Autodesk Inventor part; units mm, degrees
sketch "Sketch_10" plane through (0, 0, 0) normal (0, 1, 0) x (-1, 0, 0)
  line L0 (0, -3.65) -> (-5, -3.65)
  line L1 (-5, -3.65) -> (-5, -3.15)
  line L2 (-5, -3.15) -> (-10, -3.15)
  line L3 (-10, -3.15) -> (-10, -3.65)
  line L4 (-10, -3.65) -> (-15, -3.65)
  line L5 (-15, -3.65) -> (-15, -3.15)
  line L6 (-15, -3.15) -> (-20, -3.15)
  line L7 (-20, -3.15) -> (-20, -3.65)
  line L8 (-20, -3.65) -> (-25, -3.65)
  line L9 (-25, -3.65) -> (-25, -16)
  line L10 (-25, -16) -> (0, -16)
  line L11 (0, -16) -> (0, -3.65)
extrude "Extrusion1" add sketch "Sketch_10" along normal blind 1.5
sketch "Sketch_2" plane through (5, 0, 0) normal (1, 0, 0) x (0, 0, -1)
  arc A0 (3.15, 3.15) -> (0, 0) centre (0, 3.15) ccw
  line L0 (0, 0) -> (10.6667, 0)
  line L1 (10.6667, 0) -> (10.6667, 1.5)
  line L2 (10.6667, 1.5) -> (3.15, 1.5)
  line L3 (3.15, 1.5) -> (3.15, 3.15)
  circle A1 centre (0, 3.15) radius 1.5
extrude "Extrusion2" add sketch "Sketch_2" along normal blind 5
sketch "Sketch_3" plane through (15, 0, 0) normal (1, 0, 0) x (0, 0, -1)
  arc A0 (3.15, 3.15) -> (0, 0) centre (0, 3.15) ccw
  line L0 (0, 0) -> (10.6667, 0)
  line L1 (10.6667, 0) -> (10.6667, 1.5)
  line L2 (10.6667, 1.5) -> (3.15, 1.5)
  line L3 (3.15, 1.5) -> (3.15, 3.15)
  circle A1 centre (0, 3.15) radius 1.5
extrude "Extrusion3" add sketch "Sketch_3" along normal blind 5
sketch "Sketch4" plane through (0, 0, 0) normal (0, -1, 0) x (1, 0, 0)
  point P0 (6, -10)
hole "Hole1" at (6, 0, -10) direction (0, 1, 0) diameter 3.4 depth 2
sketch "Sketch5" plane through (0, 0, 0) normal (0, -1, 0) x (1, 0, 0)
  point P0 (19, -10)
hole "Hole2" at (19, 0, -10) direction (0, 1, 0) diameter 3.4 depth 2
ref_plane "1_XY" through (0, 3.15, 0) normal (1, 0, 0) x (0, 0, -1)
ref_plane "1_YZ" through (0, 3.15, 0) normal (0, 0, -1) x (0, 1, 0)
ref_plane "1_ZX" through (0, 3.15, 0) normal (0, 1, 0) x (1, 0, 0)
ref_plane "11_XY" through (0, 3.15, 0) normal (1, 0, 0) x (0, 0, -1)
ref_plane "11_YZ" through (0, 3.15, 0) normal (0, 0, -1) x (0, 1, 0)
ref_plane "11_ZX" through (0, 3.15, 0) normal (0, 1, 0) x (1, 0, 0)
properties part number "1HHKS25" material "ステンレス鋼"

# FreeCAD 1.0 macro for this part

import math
import FreeCAD as App
import Part
import Sketcher
from FreeCAD import Vector
Q = App.Units.Quantity

doc = App.newDocument("Part")
body = doc.addObject("PartDesign::Body", "Body")

# Sketch on XZ plane
sketch1 = body.newObject("Sketcher::SketchObject", "Sketch")
sketch1.AttachmentSupport = (doc.getObject("XZ_Plane"), [""])
sketch1.MapMode = "FlatFace"
sketch1.addGeometry([
    Part.LineSegment(Vector(0, -16, 0), Vector(0, -3.6, 0)),  # 0
    Part.LineSegment(Vector(0, -3.6, 0), Vector(5, -3.6, 0)),  # 1
    Part.LineSegment(Vector(5, -3.6, 0), Vector(5, -3.1, 0)),  # 2
    Part.LineSegment(Vector(5, -3.1, 0), Vector(10, -3.1, 0)),  # 3
    Part.LineSegment(Vector(10, -3.1, 0), Vector(10, -3.6, 0)),  # 4
    Part.LineSegment(Vector(10, -3.6, 0), Vector(15, -3.6, 0)),  # 5
    Part.LineSegment(Vector(15, -3.6, 0), Vector(15, -3.1, 0)),  # 6
    Part.LineSegment(Vector(15, -3.1, 0), Vector(20, -3.1, 0)),  # 7
    Part.LineSegment(Vector(20, -3.1, 0), Vector(20, -3.6, 0)),  # 8
    Part.LineSegment(Vector(20, -3.6, 0), Vector(25, -3.6, 0)),  # 9
    Part.LineSegment(Vector(25, -3.6, 0), Vector(25, -16, 0)),  # 10
    Part.LineSegment(Vector(25, -16, 0), Vector(0, -16, 0)),  # 11
], False)
sketch1.addConstraint([
    Sketcher.Constraint("Coincident", 0, 2, 1, 1),
    Sketcher.Constraint("Coincident", 1, 2, 2, 1),
    Sketcher.Constraint("Coincident", 2, 2, 3, 1),
    Sketcher.Constraint("Coincident", 3, 2, 4, 1),
    Sketcher.Constraint("Coincident", 4, 2, 5, 1),
    Sketcher.Constraint("Coincident", 5, 2, 6, 1),
    Sketcher.Constraint("Coincident", 6, 2, 7, 1),
    Sketcher.Constraint("Coincident", 7, 2, 8, 1),
    Sketcher.Constraint("Coincident", 8, 2, 9, 1),
    Sketcher.Constraint("Coincident", 9, 2, 10, 1),
    Sketcher.Constraint("Coincident", 10, 2, 11, 1),
    Sketcher.Constraint("Coincident", 11, 2, 0, 1),
    Sketcher.Constraint("Vertical", 0),
    Sketcher.Constraint("Horizontal", 1),
    Sketcher.Constraint("Vertical", 2),
    Sketcher.Constraint("Horizontal", 3),
    Sketcher.Constraint("Vertical", 4),
    Sketcher.Constraint("Horizontal", 5),
    Sketcher.Constraint("Vertical", 6),
    Sketcher.Constraint("Horizontal", 7),
    Sketcher.Constraint("Vertical", 8),
    Sketcher.Constraint("Horizontal", 9),
    Sketcher.Constraint("Vertical", 10),
    Sketcher.Constraint("Horizontal", 11),
    Sketcher.Constraint("PointOnObject", 0, 2, -2),
    Sketcher.Constraint("Horizontal", 1, 2, 4, 2),
    Sketcher.Constraint("Horizontal", 3, 2, 6, 2),
    Sketcher.Constraint("Horizontal", 5, 2, 8, 2),
    Sketcher.Constraint("Equal", 1, 3),
    Sketcher.Constraint("Equal", 3, 5),
    Sketcher.Constraint("Equal", 5, 7),
    Sketcher.Constraint("Equal", 7, 9),
    Sketcher.Constraint("DistanceX", 1, 1, 1, 2, Q("5 mm")),
    Sketcher.Constraint("DistanceY", 2, 1, 2, 2, Q("0.5 mm")),
    Sketcher.Constraint("DistanceY", 10, 2, -1, 1, Q("16 mm")),
    Sketcher.Constraint("DistanceY", 0, 1, 0, 2, Q("12.35 mm")),
])
pad1 = body.newObject("PartDesign::Pad", "Pad")
pad1.Profile = sketch1
pad1.Length = 1.5
pad1.Reversed = True

# Sketch on YZ plane
sketch2 = body.newObject("Sketcher::SketchObject", "Sketch001")
sketch2.AttachmentSupport = (doc.getObject("YZ_Plane"), [""])
sketch2.MapMode = "FlatFace"
sketch2.AttachmentOffset = App.Placement(Vector(0, 0, 5), App.Rotation())
sketch2.addGeometry([
    Part.LineSegment(Vector(1.5, -3.1, 0), Vector(3.1, -3.1, 0)),  # 0
    Part.ArcOfCircle(Part.Circle(Vector(3.1, 0, 0), Vector(0, 0, 1), 3.1), math.radians(-90), math.radians(180)),  # 1
    Part.LineSegment(Vector(0, 0, 0), Vector(0, -10.7, 0)),  # 2
    Part.LineSegment(Vector(0, -10.7, 0), Vector(1.5, -10.7, 0)),  # 3
    Part.LineSegment(Vector(1.5, -10.7, 0), Vector(1.5, -3.1, 0)),  # 4
    Part.Circle(Vector(3.1, 0, 0), Vector(0, 0, 1), 1.5),  # 5
], False)
sketch2.addConstraint([
    Sketcher.Constraint("Tangent", 0, 2, 1, 1),
    Sketcher.Constraint("Tangent", 1, 2, 2, 1),
    Sketcher.Constraint("Coincident", 2, 2, 3, 1),
    Sketcher.Constraint("Coincident", 3, 2, 4, 1),
    Sketcher.Constraint("Coincident", 4, 2, 0, 1),
    Sketcher.Constraint("Horizontal", 0),
    Sketcher.Constraint("Vertical", 2),
    Sketcher.Constraint("Horizontal", 3),
    Sketcher.Constraint("Vertical", 4),
    Sketcher.Constraint("Coincident", 1, 2, -1, 1),
    Sketcher.Constraint("Coincident", 5, 3, 1, 3),
    Sketcher.Constraint("Diameter", 5, Q("3 mm")),
    Sketcher.Constraint("Radius", 1, Q("3.15 mm")),
    Sketcher.Constraint("DistanceX", 3, 1, 3, 2, Q("1.5 mm")),
    Sketcher.Constraint("DistanceY", 2, 2, 2, 1, Q("10.6667 mm")),
])
pad2 = body.newObject("PartDesign::Pad", "Pad001")
pad2.Profile = sketch2
pad2.Length = 5

# Sketch on YZ plane
sketch3 = body.newObject("Sketcher::SketchObject", "Sketch002")
sketch3.AttachmentSupport = (doc.getObject("YZ_Plane"), [""])
sketch3.MapMode = "FlatFace"
sketch3.AttachmentOffset = App.Placement(Vector(0, 0, 15), App.Rotation())
sketch3.addGeometry([
    Part.LineSegment(Vector(1.5, -3.1, 0), Vector(3.1, -3.1, 0)),  # 0
    Part.ArcOfCircle(Part.Circle(Vector(3.1, 0, 0), Vector(0, 0, 1), 3.1), math.radians(-90), math.radians(180)),  # 1
    Part.LineSegment(Vector(0, 0, 0), Vector(0, -10.7, 0)),  # 2
    Part.LineSegment(Vector(0, -10.7, 0), Vector(1.5, -10.7, 0)),  # 3
    Part.LineSegment(Vector(1.5, -10.7, 0), Vector(1.5, -3.1, 0)),  # 4
    Part.Circle(Vector(3.1, 0, 0), Vector(0, 0, 1), 1.5),  # 5
], False)
sketch3.addConstraint([
    Sketcher.Constraint("Tangent", 0, 2, 1, 1),
    Sketcher.Constraint("Tangent", 1, 2, 2, 1),
    Sketcher.Constraint("Coincident", 2, 2, 3, 1),
    Sketcher.Constraint("Coincident", 3, 2, 4, 1),
    Sketcher.Constraint("Coincident", 4, 2, 0, 1),
    Sketcher.Constraint("Horizontal", 0),
    Sketcher.Constraint("Vertical", 2),
    Sketcher.Constraint("Horizontal", 3),
    Sketcher.Constraint("Vertical", 4),
    Sketcher.Constraint("Coincident", 1, 2, -1, 1),
    Sketcher.Constraint("Coincident", 5, 3, 1, 3),
    Sketcher.Constraint("Diameter", 5, Q("3 mm")),
    Sketcher.Constraint("Radius", 1, Q("3.15 mm")),
    Sketcher.Constraint("DistanceX", 3, 1, 3, 2, Q("1.5 mm")),
    Sketcher.Constraint("DistanceY", 2, 2, 2, 1, Q("10.6667 mm")),
])
pad3 = body.newObject("PartDesign::Pad", "Pad002")
pad3.Profile = sketch3
pad3.Length = 5

# Sketch on XZ plane
sketch4 = body.newObject("Sketcher::SketchObject", "Sketch003")
sketch4.AttachmentSupport = (doc.getObject("XZ_Plane"), [""])
sketch4.MapMode = "FlatFace"
sketch4.addGeometry(Part.Circle(Vector(6, -10, 0), Vector(0, 0, 1), 1.7), False)
sketch4.addConstraint([
    Sketcher.Constraint("Diameter", 0, Q("3.4 mm")),
    Sketcher.Constraint("DistanceX", -1, 1, 0, 3, Q("6 mm")),
    Sketcher.Constraint("DistanceY", 0, 3, -1, 1, Q("10 mm")),
])
doc.recompute()
hole = body.newObject("PartDesign::Hole", "Hole")
hole.Profile = sketch4
hole.ThreadType = "None"
hole.Diameter = 3.4
hole.DepthType = "Dimension"
hole.Depth = 2
hole.DrillPoint = "Flat"

# Sketch on XZ plane
sketch5 = body.newObject("Sketcher::SketchObject", "Sketch004")
sketch5.AttachmentSupport = (doc.getObject("XZ_Plane"), [""])
sketch5.MapMode = "FlatFace"
sketch5.addGeometry(Part.Circle(Vector(19, -10, 0), Vector(0, 0, 1), 1.7), False)
sketch5.addConstraint([
    Sketcher.Constraint("Diameter", 0, Q("3.4 mm")),
    Sketcher.Constraint("DistanceX", -1, 1, 0, 3, Q("19 mm")),
    Sketcher.Constraint("DistanceY", 0, 3, -1, 1, Q("10 mm")),
])
doc.recompute()
hole2 = body.newObject("PartDesign::Hole", "Hole001")
hole2.Profile = sketch5
hole2.ThreadType = "None"
hole2.Diameter = 3.4
hole2.DepthType = "Dimension"
hole2.Depth = 2
hole2.DrillPoint = "Flat"

doc.recompute()
